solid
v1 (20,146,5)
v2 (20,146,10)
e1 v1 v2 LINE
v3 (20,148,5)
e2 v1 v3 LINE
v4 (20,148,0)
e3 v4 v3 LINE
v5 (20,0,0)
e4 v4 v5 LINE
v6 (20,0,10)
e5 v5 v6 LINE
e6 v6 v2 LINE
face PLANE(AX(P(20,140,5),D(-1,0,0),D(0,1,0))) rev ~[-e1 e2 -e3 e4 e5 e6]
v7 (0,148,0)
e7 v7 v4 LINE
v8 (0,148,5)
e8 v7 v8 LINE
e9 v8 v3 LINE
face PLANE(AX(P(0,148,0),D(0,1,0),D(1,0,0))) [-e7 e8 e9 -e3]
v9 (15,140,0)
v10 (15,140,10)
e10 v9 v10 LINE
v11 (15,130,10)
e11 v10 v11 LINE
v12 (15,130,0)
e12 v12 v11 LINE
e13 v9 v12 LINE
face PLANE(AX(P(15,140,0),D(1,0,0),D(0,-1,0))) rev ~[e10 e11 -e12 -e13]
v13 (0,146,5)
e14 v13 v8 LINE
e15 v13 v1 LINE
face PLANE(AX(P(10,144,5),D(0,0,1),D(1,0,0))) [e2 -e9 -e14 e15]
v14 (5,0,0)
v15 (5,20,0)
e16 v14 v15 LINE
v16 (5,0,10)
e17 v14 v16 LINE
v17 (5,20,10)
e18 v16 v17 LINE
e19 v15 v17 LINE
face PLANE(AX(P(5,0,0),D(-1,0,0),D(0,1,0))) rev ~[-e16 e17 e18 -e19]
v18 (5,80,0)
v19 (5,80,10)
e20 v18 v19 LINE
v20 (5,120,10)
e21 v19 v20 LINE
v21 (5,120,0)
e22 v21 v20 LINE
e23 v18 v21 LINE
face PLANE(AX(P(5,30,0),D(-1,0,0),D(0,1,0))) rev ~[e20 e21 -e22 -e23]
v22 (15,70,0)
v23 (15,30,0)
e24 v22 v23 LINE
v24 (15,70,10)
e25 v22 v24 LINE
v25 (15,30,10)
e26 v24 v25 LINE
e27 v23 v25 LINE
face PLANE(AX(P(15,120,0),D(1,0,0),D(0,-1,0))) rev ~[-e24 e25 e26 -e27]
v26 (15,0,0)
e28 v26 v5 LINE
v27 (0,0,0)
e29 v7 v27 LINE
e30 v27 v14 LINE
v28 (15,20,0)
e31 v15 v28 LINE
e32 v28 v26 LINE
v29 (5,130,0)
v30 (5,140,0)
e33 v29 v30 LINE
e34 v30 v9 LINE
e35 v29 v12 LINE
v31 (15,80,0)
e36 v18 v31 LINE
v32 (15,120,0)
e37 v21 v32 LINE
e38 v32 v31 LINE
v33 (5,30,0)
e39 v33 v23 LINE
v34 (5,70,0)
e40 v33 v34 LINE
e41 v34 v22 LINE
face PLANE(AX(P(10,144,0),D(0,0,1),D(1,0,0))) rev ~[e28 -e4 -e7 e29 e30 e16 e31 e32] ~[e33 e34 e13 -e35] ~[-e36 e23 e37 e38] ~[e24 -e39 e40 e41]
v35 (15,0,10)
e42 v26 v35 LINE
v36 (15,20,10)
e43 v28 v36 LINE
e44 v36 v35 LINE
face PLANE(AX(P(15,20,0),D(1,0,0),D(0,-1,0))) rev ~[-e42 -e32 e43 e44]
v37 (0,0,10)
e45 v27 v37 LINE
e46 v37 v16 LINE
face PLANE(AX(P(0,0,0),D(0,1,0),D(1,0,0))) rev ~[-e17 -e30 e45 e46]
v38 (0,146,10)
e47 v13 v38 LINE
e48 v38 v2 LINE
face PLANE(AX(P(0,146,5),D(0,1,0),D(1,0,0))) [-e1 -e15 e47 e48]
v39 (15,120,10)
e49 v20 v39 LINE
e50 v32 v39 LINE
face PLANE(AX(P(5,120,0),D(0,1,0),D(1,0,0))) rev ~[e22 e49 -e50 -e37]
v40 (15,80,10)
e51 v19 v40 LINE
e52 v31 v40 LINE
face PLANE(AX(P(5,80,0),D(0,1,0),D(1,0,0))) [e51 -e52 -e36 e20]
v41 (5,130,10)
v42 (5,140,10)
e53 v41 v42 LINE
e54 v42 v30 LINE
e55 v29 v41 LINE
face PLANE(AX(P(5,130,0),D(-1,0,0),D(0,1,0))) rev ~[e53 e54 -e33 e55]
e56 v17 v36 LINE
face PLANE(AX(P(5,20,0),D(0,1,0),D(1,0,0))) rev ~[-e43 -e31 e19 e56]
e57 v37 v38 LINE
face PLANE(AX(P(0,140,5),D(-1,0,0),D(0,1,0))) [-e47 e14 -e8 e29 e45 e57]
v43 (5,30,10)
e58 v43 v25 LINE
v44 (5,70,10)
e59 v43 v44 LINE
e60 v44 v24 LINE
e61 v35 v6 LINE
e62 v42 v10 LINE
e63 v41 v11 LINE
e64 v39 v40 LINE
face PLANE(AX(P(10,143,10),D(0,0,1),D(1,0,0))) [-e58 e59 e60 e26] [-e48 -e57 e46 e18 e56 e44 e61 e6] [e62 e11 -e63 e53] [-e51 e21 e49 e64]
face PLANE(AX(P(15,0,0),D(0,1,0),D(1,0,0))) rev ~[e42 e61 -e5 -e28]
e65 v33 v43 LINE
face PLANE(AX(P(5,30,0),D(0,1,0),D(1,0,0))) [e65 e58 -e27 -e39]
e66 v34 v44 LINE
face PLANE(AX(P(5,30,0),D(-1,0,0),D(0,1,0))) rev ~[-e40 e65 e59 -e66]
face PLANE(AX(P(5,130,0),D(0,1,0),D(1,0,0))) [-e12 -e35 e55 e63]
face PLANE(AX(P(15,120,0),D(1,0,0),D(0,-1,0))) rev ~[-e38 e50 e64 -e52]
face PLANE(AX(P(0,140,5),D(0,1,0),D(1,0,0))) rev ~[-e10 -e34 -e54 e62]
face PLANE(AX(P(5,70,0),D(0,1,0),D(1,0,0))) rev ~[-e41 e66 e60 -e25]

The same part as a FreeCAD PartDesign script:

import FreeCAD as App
import Part
import Sketcher


def add_polygon(sketch, points):
    """Adds a closed chain of lines whose ends are joined by coincident constraints."""
    first, n = sketch.GeometryCount, len(points)
    for a, b in zip(points, points[1:] + points[:1]):
        sketch.addGeometry(Part.LineSegment(App.Vector(*a, 0), App.Vector(*b, 0)), False)
    for i in range(n):
        sketch.addConstraint(Sketcher.Constraint("Coincident", first + i, 2, first + (i + 1) % n, 1))

doc = App.newDocument("Part")
body = doc.addObject("PartDesign::Body", "Body")

sketch1 = body.newObject("Sketcher::SketchObject", "Sketch")
sketch1.AttachmentSupport = (doc.getObject("XY_Plane"), [""])
sketch1.MapMode = "FlatFace"
add_polygon(sketch1, [(0, 140), (0, 0), (5, 0), (5, 20), (15, 20), (15, 0), (20, 0), (20, 140), (15, 140), (15, 130), (5, 130), (5, 140)])
add_polygon(sketch1, [(15, 120), (15, 30), (5, 30), (5, 120)])
sketch1.addConstraint(Sketcher.Constraint("Vertical", 0))
sketch1.addConstraint(Sketcher.Constraint("Horizontal", 1))
sketch1.addConstraint(Sketcher.Constraint("Vertical", 2))
sketch1.addConstraint(Sketcher.Constraint("Horizontal", 3))
sketch1.addConstraint(Sketcher.Constraint("Vertical", 4))
sketch1.addConstraint(Sketcher.Constraint("Horizontal", 5))
sketch1.addConstraint(Sketcher.Constraint("Vertical", 6))
sketch1.addConstraint(Sketcher.Constraint("Horizontal", 7))
sketch1.addConstraint(Sketcher.Constraint("Vertical", 8))
sketch1.addConstraint(Sketcher.Constraint("Horizontal", 9))
sketch1.addConstraint(Sketcher.Constraint("Vertical", 10))
sketch1.addConstraint(Sketcher.Constraint("Horizontal", 11))
sketch1.addConstraint(Sketcher.Constraint("Vertical", 12))
sketch1.addConstraint(Sketcher.Constraint("Horizontal", 13))
sketch1.addConstraint(Sketcher.Constraint("Vertical", 14))
sketch1.addConstraint(Sketcher.Constraint("Horizontal", 15))
sketch1.addConstraint(Sketcher.Constraint("Coincident", 0, 2, -1, 1))
sketch1.addConstraint(Sketcher.Constraint("PointOnObject", 4, 2, -1))
sketch1.addConstraint(Sketcher.Constraint("Horizontal", 7, 2, 10, 2))
sketch1.addConstraint(Sketcher.Constraint("Vertical", 4, 2, 7, 2))
sketch1.addConstraint(Sketcher.Constraint("Vertical", 2, 2, 9, 2))
sketch1.addConstraint(Sketcher.Constraint("Vertical", 8, 2, 12, 2))
sketch1.addConstraint(Sketcher.Constraint("Vertical", 10, 2, 13, 2))
sketch1.addConstraint(Sketcher.Constraint("Equal", 1, 5))
sketch1.addConstraint(Sketcher.Constraint("Equal", 15, 8))
sketch1.addConstraint(Sketcher.Constraint("DistanceX", 1, 1, 1, 2, 5.0))
sketch1.addConstraint(Sketcher.Constraint("DistanceX", 3, 1, 3, 2, 10.0))
sketch1.addConstraint(Sketcher.Constraint("DistanceY", 0, 2, 0, 1, 140.0))
sketch1.addConstraint(Sketcher.Constraint("DistanceY", 2, 1, 2, 2, 20.0))
sketch1.addConstraint(Sketcher.Constraint("DistanceY", 12, 2, 12, 1, 90.0))
sketch1.addConstraint(Sketcher.Constraint("DistanceY", -1, 1, 12, 2, 30.0))
pad1 = body.newObject("PartDesign::Pad", "Pad")
pad1.Profile = sketch1
pad1.Length = 10

sketch2 = body.newObject("Sketcher::SketchObject", "Sketch001")
sketch2.AttachmentSupport = (doc.getObject("XY_Plane"), [""])
sketch2.MapMode = "FlatFace"
add_polygon(sketch2, [(5, 80), (5, 70), (15, 70), (15, 80)])
sketch2.addConstraint(Sketcher.Constraint("Vertical", 0))
sketch2.addConstraint(Sketcher.Constraint("Horizontal", 1))
sketch2.addConstraint(Sketcher.Constraint("Vertical", 2))
sketch2.addConstraint(Sketcher.Constraint("Horizontal", 3))
sketch2.addConstraint(Sketcher.Constraint("Equal", 3, 0))
sketch2.addConstraint(Sketcher.Constraint("DistanceX", 1, 1, 1, 2, 10.0))
sketch2.addConstraint(Sketcher.Constraint("DistanceX", -1, 1, 0, 2, 5.0))
sketch2.addConstraint(Sketcher.Constraint("DistanceY", -1, 1, 0, 2, 70.0))
pad2 = body.newObject("PartDesign::Pad", "Pad001")
pad2.Profile = sketch2
pad2.Length = 10

sketch3 = body.newObject("Sketcher::SketchObject", "Sketch002")
sketch3.AttachmentSupport = (doc.getObject("XY_Plane"), [""])
sketch3.MapMode = "FlatFace"
add_polygon(sketch3, [(0, 148), (0, 140), (20, 140), (20, 148)])
sketch3.addConstraint(Sketcher.Constraint("Vertical", 0))
sketch3.addConstraint(Sketcher.Constraint("Horizontal", 1))
sketch3.addConstraint(Sketcher.Constraint("Vertical", 2))
sketch3.addConstraint(Sketcher.Constraint("Horizontal", 3))
sketch3.addConstraint(Sketcher.Constraint("PointOnObject", 0, 2, -2))
sketch3.addConstraint(Sketcher.Constraint("DistanceX", 1, 1, 1, 2, 20.0))
sketch3.addConstraint(Sketcher.Constraint("DistanceY", 0, 2, 0, 1, 8.0))
sketch3.addConstraint(Sketcher.Constraint("DistanceY", -1, 1, 0, 2, 140.0))
pad3 = body.newObject("PartDesign::Pad", "Pad002")
pad3.Profile = sketch3
pad3.Length = 5

sketch4 = body.newObject("Sketcher::SketchObject", "Sketch003")
sketch4.AttachmentSupport = (doc.getObject("XY_Plane"), [""])
sketch4.MapMode = "FlatFace"
sketch4.AttachmentOffset = App.Placement(App.Vector(0, 0, 5), App.Rotation())
add_polygon(sketch4, [(0, 146), (0, 140), (20, 140), (20, 146)])
sketch4.addConstraint(Sketcher.Constraint("Vertical", 0))
sketch4.addConstraint(Sketcher.Constraint("Horizontal", 1))
sketch4.addConstraint(Sketcher.Constraint("Vertical", 2))
sketch4.addConstraint(Sketcher.Constraint("Horizontal", 3))
sketch4.addConstraint(Sketcher.Constraint("PointOnObject", 0, 2, -2))
sketch4.addConstraint(Sketcher.Constraint("DistanceX", 1, 1, 1, 2, 20.0))
sketch4.addConstraint(Sketcher.Constraint("DistanceY", 0, 2, 0, 1, 6.0))
sketch4.addConstraint(Sketcher.Constraint("DistanceY", -1, 1, 0, 2, 140.0))
pad4 = body.newObject("PartDesign::Pad", "Pad003")
pad4.Profile = sketch4
pad4.Length = 5

doc.recompute()
